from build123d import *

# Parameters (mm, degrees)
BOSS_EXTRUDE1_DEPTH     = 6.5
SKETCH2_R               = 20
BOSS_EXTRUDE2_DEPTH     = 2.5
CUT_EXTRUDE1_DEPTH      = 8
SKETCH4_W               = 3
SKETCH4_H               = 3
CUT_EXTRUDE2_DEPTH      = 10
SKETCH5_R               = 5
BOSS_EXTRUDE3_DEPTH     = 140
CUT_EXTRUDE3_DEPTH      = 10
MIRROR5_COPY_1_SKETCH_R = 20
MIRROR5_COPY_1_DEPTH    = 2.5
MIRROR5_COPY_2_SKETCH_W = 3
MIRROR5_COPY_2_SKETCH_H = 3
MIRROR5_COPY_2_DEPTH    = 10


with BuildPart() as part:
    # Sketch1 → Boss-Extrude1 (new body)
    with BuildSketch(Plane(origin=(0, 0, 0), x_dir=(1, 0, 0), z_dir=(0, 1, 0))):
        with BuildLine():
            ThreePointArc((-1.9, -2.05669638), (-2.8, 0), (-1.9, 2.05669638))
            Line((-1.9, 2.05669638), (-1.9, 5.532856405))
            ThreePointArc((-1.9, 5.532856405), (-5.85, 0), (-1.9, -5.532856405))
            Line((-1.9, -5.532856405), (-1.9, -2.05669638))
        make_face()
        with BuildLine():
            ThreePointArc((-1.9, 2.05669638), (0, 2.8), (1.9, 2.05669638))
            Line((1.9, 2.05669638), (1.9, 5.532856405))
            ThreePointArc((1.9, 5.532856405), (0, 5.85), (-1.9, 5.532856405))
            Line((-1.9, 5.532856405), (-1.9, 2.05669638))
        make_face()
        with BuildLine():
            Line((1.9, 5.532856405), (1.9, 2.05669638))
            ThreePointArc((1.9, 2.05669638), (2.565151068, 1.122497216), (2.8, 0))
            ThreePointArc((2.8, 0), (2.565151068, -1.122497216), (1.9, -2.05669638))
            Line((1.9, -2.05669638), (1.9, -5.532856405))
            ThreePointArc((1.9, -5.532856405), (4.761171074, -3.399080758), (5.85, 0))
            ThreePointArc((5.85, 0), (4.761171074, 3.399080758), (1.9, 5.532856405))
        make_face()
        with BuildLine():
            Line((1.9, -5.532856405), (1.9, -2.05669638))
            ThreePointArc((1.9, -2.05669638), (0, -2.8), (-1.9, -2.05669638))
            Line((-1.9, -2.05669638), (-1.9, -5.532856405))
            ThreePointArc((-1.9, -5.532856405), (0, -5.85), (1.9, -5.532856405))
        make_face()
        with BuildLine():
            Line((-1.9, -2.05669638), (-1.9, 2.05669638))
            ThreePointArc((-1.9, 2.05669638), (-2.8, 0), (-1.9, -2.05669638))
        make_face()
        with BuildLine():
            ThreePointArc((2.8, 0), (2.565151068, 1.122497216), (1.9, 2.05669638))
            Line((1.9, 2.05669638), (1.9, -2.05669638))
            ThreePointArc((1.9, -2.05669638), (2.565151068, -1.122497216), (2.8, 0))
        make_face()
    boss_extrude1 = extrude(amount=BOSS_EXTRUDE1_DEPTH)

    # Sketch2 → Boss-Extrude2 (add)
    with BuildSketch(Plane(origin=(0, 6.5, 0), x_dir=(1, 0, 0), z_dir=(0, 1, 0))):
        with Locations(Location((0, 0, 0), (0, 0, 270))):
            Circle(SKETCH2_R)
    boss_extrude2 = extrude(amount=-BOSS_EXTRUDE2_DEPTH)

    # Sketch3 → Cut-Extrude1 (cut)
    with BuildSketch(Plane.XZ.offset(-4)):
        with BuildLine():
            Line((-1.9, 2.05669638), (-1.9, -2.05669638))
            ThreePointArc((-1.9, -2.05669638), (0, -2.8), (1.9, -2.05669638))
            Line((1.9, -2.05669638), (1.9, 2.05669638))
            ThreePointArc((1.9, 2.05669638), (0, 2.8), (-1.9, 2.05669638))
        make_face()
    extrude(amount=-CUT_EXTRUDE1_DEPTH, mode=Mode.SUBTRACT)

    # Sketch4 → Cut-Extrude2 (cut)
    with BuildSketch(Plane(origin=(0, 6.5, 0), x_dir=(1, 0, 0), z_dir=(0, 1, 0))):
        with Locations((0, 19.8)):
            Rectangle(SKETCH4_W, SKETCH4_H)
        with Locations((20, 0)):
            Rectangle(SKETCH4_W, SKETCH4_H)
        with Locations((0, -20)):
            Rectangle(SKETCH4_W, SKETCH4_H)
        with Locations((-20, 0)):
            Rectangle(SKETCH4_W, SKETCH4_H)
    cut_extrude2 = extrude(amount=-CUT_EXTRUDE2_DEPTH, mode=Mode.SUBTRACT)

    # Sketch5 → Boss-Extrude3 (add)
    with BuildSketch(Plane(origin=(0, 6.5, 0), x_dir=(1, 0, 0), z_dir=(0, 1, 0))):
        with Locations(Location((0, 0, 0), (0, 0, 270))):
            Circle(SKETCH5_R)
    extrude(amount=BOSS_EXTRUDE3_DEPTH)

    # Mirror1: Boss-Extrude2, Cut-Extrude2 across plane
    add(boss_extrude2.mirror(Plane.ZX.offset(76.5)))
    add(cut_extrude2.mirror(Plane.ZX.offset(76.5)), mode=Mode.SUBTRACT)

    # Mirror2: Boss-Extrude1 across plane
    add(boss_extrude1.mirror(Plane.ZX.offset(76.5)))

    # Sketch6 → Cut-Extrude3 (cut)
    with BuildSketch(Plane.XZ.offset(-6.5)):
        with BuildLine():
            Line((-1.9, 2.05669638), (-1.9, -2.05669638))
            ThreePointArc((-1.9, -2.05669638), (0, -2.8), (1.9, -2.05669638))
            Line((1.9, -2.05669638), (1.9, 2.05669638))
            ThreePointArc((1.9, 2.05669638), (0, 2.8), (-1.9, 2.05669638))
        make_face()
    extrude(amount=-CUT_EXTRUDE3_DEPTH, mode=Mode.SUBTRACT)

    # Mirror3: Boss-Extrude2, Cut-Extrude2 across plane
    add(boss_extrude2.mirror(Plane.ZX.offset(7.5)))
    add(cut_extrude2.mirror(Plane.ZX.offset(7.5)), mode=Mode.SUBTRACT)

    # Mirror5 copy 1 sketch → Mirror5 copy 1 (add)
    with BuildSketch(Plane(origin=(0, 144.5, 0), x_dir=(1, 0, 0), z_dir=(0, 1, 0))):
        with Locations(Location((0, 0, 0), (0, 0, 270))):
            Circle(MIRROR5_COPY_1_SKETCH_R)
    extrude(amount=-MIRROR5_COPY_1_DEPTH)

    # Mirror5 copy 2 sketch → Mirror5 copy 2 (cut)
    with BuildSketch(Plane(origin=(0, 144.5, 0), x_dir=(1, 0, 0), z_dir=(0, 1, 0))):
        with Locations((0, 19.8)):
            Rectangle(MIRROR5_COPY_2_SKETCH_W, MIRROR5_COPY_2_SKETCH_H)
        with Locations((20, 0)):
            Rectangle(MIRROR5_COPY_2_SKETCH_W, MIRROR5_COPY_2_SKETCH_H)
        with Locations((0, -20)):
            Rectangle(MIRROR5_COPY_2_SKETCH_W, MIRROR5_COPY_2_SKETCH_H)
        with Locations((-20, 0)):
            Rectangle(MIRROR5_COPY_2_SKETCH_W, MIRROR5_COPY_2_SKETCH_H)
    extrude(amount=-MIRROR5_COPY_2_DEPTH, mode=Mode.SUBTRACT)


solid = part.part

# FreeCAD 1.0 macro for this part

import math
import FreeCAD as App
import Part
import Sketcher

V = App.Vector
Q = App.Units.Quantity

doc = App.newDocument("Part")
body = doc.addObject("PartDesign::Body", "Body")

sketch1 = body.newObject("Sketcher::SketchObject", "Sketch")
sketch1.AttachmentSupport = (doc.getObject("XZ_Plane"), [""])
sketch1.MapMode = "FlatFace"
sketch1.addGeometry([
    Part.ArcOfCircle(Part.Circle(V(0, 0, 0), V(0, 0, 1), 5.85), math.radians(0), math.radians(71.04737)),
    Part.ArcOfCircle(Part.Circle(V(0, 0, 0), V(0, 0, 1), 5.85), math.radians(-71.04737), math.radians(0)),
    Part.ArcOfCircle(Part.Circle(V(0, 0, 0), V(0, 0, 1), 5.85), math.radians(-108.95263), math.radians(-71.04737)),
    Part.ArcOfCircle(Part.Circle(V(0, 0, 0), V(0, 0, 1), 5.85), math.radians(108.95263), math.radians(251.04737)),
    Part.ArcOfCircle(Part.Circle(V(0, 0, 0), V(0, 0, 1), 5.85), math.radians(71.04737), math.radians(108.95263)),
    Part.ArcOfCircle(Part.Circle(V(0, 0, 0), V(0, 0, 1), 2.8), math.radians(-132.73211), math.radians(-47.26789)),
    Part.LineSegment(V(1.9, -2.056696, 0), V(1.9, 2.056696, 0)),
    Part.ArcOfCircle(Part.Circle(V(0, 0, 0), V(0, 0, 1), 2.8), math.radians(47.26789), math.radians(132.73211)),
    Part.LineSegment(V(-1.9, 2.056696, 0), V(-1.9, -2.056696, 0)),
], False)
sketch1.addConstraint([
    Sketcher.Constraint("Tangent", 0, 1, 1, 2),
    Sketcher.Constraint("Tangent", 1, 1, 2, 2),
    Sketcher.Constraint("Tangent", 2, 1, 3, 2),
    Sketcher.Constraint("Tangent", 3, 1, 4, 2),
    Sketcher.Constraint("Tangent", 4, 1, 0, 2),
    Sketcher.Constraint("Coincident", 5, 2, 6, 1),
    Sketcher.Constraint("Coincident", 6, 2, 7, 1),
    Sketcher.Constraint("Coincident", 7, 2, 8, 1),
    Sketcher.Constraint("Coincident", 8, 2, 5, 1),
    Sketcher.Constraint("Vertical", 6),
    Sketcher.Constraint("Vertical", 8),
    Sketcher.Constraint("Coincident", 0, 3, -1, 1),
    Sketcher.Constraint("Coincident", 2, 3, -1, 1),
    Sketcher.Constraint("Coincident", 5, 3, -1, 1),
    Sketcher.Constraint("Coincident", 7, 3, -1, 1),
    Sketcher.Constraint("Equal", 5, 7),
    Sketcher.Constraint("PointOnObject", 0, 1, -1),
    Sketcher.Constraint("Horizontal", 1, 1, 2, 1),
    Sketcher.Constraint("Horizontal", 3, 1, 4, 1),
    Sketcher.Constraint("Horizontal", 6, 2, 7, 2),
    Sketcher.Constraint("Vertical", 2, 1, 3, 1),
    Sketcher.Constraint("Vertical", 4, 1, 5, 2),
    Sketcher.Constraint("Radius", 5, Q("2.8 mm")),
    Sketcher.Constraint("Radius", 0, Q("5.85 mm")),
    Sketcher.Constraint("DistanceX", -1, 1, 1, 1, Q("1.9 mm")),
])
pad1 = body.newObject("PartDesign::Pad", "Pad")
pad1.Profile = sketch1
pad1.Length = 6.5
pad1.Reversed = True

sketch2 = body.newObject("Sketcher::SketchObject", "Sketch001")
sketch2.AttachmentSupport = (doc.getObject("XZ_Plane"), [""])
sketch2.MapMode = "FlatFace"
sketch2.AttachmentOffset = App.Placement(V(0, 0, -6.5), App.Rotation())
sketch2.addGeometry(Part.Circle(V(0, 0, 0), V(0, 0, 1), 20), False)
sketch2.addConstraint([
    Sketcher.Constraint("Coincident", 0, 3, -1, 1),
    Sketcher.Constraint("Diameter", 0, Q("40 mm")),
])
pad2 = body.newObject("PartDesign::Pad", "Pad001")
pad2.Profile = sketch2
pad2.Length = 2.5

sketch3 = body.newObject("Sketcher::SketchObject", "Sketch002")
sketch3.AttachmentSupport = (doc.getObject("XZ_Plane"), [""])
sketch3.MapMode = "FlatFace"
sketch3.AttachmentOffset = App.Placement(V(0, 0, -4), App.Rotation())
sketch3.addGeometry([
    Part.LineSegment(V(-1.9, 2.056696, 0), V(-1.9, -2.056696, 0)),
    Part.ArcOfCircle(Part.Circle(V(0, 0, 0), V(0, 0, 1), 2.8), math.radians(-132.73211), math.radians(-47.26789)),
    Part.LineSegment(V(1.9, -2.056696, 0), V(1.9, 2.056696, 0)),
    Part.ArcOfCircle(Part.Circle(V(0, 0, 0), V(0, 0, 1), 2.8), math.radians(47.26789), math.radians(132.73211)),
], False)
sketch3.addConstraint([
    Sketcher.Constraint("Coincident", 0, 2, 1, 1),
    Sketcher.Constraint("Coincident", 1, 2, 2, 1),
    Sketcher.Constraint("Coincident", 2, 2, 3, 1),
    Sketcher.Constraint("Coincident", 3, 2, 0, 1),
    Sketcher.Constraint("Vertical", 0),
    Sketcher.Constraint("Vertical", 2),
    Sketcher.Constraint("Coincident", 1, 3, -1, 1),
    Sketcher.Constraint("Coincident", 3, 3, -1, 1),
    Sketcher.Constraint("Equal", 1, 3),
    Sketcher.Constraint("Horizontal", 0, 2, 1, 2),
    Sketcher.Constraint("Radius", 1, Q("2.8 mm")),
    Sketcher.Constraint("DistanceX", 0, 2, -1, 1, Q("1.9 mm")),
])
pocket1 = body.newObject("PartDesign::Pocket", "Pocket")
pocket1.Profile = sketch3
pocket1.Length = 8

sketch4 = body.newObject("Sketcher::SketchObject", "Sketch003")
sketch4.AttachmentSupport = (doc.getObject("XZ_Plane"), [""])
sketch4.MapMode = "FlatFace"
sketch4.AttachmentOffset = App.Placement(V(0, 0, -6.5), App.Rotation())
sketch4.addGeometry([
    Part.LineSegment(V(-1.5, -21.3, 0), V(-1.5, -18.3, 0)),
    Part.LineSegment(V(-1.5, -18.3, 0), V(1.5, -18.3, 0)),
    Part.LineSegment(V(1.5, -18.3, 0), V(1.5, -21.3, 0)),
    Part.LineSegment(V(1.5, -21.3, 0), V(-1.5, -21.3, 0)),
    Part.LineSegment(V(18.5, -1.5, 0), V(18.5, 1.5, 0)),
    Part.LineSegment(V(18.5, 1.5, 0), V(21.5, 1.5, 0)),
    Part.LineSegment(V(21.5, 1.5, 0), V(21.5, -1.5, 0)),
    Part.LineSegment(V(21.5, -1.5, 0), V(18.5, -1.5, 0)),
    Part.LineSegment(V(-1.5, 18.5, 0), V(-1.5, 21.5, 0)),
    Part.LineSegment(V(-1.5, 21.5, 0), V(1.5, 21.5, 0)),
    Part.LineSegment(V(1.5, 21.5, 0), V(1.5, 18.5, 0)),
    Part.LineSegment(V(1.5, 18.5, 0), V(-1.5, 18.5, 0)),
    Part.LineSegment(V(-21.5, -1.5, 0), V(-21.5, 1.5, 0)),
    Part.LineSegment(V(-21.5, 1.5, 0), V(-18.5, 1.5, 0)),
    Part.LineSegment(V(-18.5, 1.5, 0), V(-18.5, -1.5, 0)),
    Part.LineSegment(V(-18.5, -1.5, 0), V(-21.5, -1.5, 0)),
], False)
sketch4.addConstraint([
    Sketcher.Constraint("Coincident", 0, 2, 1, 1),
    Sketcher.Constraint("Coincident", 1, 2, 2, 1),
    Sketcher.Constraint("Coincident", 2, 2, 3, 1),
    Sketcher.Constraint("Coincident", 3, 2, 0, 1),
    Sketcher.Constraint("Coincident", 4, 2, 5, 1),
    Sketcher.Constraint("Coincident", 5, 2, 6, 1),
    Sketcher.Constraint("Coincident", 6, 2, 7, 1),
    Sketcher.Constraint("Coincident", 7, 2, 4, 1),
    Sketcher.Constraint("Coincident", 8, 2, 9, 1),
    Sketcher.Constraint("Coincident", 9, 2, 10, 1),
    Sketcher.Constraint("Coincident", 10, 2, 11, 1),
    Sketcher.Constraint("Coincident", 11, 2, 8, 1),
    Sketcher.Constraint("Coincident", 12, 2, 13, 1),
    Sketcher.Constraint("Coincident", 13, 2, 14, 1),
    Sketcher.Constraint("Coincident", 14, 2, 15, 1),
    Sketcher.Constraint("Coincident", 15, 2, 12, 1),
    Sketcher.Constraint("Vertical", 0),
    Sketcher.Constraint("Horizontal", 1),
    Sketcher.Constraint("Vertical", 2),
    Sketcher.Constraint("Horizontal", 3),
    Sketcher.Constraint("Vertical", 4),
    Sketcher.Constraint("Horizontal", 5),
    Sketcher.Constraint("Vertical", 6),
    Sketcher.Constraint("Horizontal", 7),
    Sketcher.Constraint("Vertical", 8),
    Sketcher.Constraint("Horizontal", 9),
    Sketcher.Constraint("Vertical", 10),
    Sketcher.Constraint("Horizontal", 11),
    Sketcher.Constraint("Vertical", 12),
    Sketcher.Constraint("Horizontal", 13),
    Sketcher.Constraint("Vertical", 14),
    Sketcher.Constraint("Horizontal", 15),
    Sketcher.Constraint("Symmetric", 6, 2, 12, 2, -1, 1),
    Sketcher.Constraint("Symmetric", 4, 2, 14, 2, -1, 1),
    Sketcher.Constraint("Horizontal", 5, 2, 12, 2),
    Sketcher.Constraint("Vertical", 3, 2, 8, 2),
    Sketcher.Constraint("Vertical", 2, 2, 9, 2),
    Sketcher.Constraint("Equal", 3, 5),
    Sketcher.Constraint("Equal", 15, 0),
    Sketcher.Constraint("Equal", 2, 4),
    Sketcher.Constraint("Equal", 6, 8),
    Sketcher.Constraint("DistanceX", 1, 1, 1, 2, Q("3 mm")),
    Sketcher.Constraint("DistanceX", 1, 2, 4, 2, Q("17 mm")),
    Sketcher.Constraint("DistanceY", 4, 2, 8, 2, Q("20 mm")),
    Sketcher.Constraint("DistanceX", 12, 2, 11, 2, Q("20 mm")),
    Sketcher.Constraint("DistanceY", 0, 2, -1, 1, Q("18.3 mm")),
])
pocket2 = body.newObject("PartDesign::Pocket", "Pocket001")
pocket2.Profile = sketch4
pocket2.Length = 10
pocket2.Reversed = True

sketch5 = body.newObject("Sketcher::SketchObject", "Sketch004")
sketch5.AttachmentSupport = (doc.getObject("XZ_Plane"), [""])
sketch5.MapMode = "FlatFace"
sketch5.AttachmentOffset = App.Placement(V(0, 0, -6.5), App.Rotation())
sketch5.addGeometry(Part.Circle(V(0, 0, 0), V(0, 0, 1), 5), False)
sketch5.addConstraint([
    Sketcher.Constraint("Coincident", 0, 3, -1, 1),
    Sketcher.Constraint("Diameter", 0, Q("10 mm")),
])
pad3 = body.newObject("PartDesign::Pad", "Pad002")
pad3.Profile = sketch5
pad3.Length = 140
pad3.Reversed = True
doc.recompute()

datumplane = body.newObject("PartDesign::Plane", "DatumPlane")
datumplane.AttachmentSupport = (doc.getObject("XZ_Plane"), [""])
datumplane.MapMode = "FlatFace"
datumplane.AttachmentOffset = App.Placement(V(0, 0, -76.5), App.Rotation())
mirrored = body.newObject("PartDesign::Mirrored", "Mirrored")
mirrored.Originals = [pad2, pocket2]
mirrored.MirrorPlane = (datumplane, [""])
body.Tip = mirrored
doc.recompute()

datumplane2 = body.newObject("PartDesign::Plane", "DatumPlane001")
datumplane2.AttachmentSupport = (doc.getObject("XZ_Plane"), [""])
datumplane2.MapMode = "FlatFace"
datumplane2.AttachmentOffset = App.Placement(V(0, 0, -76.5), App.Rotation())
mirrored2 = body.newObject("PartDesign::Mirrored", "Mirrored001")
mirrored2.Originals = [pad1]
mirrored2.MirrorPlane = (datumplane2, [""])
body.Tip = mirrored2

sketch6 = body.newObject("Sketcher::SketchObject", "Sketch005")
sketch6.AttachmentSupport = (doc.getObject("XZ_Plane"), [""])
sketch6.MapMode = "FlatFace"
sketch6.AttachmentOffset = App.Placement(V(0, 0, -6.5), App.Rotation())
sketch6.addGeometry([
    Part.LineSegment(V(-1.9, 2.056696, 0), V(-1.9, -2.056696, 0)),
    Part.ArcOfCircle(Part.Circle(V(0, 0, 0), V(0, 0, 1), 2.8), math.radians(-132.73211), math.radians(-47.26789)),
    Part.LineSegment(V(1.9, -2.056696, 0), V(1.9, 2.056696, 0)),
    Part.ArcOfCircle(Part.Circle(V(0, 0, 0), V(0, 0, 1), 2.8), math.radians(47.26789), math.radians(132.73211)),
], False)
sketch6.addConstraint([
    Sketcher.Constraint("Coincident", 0, 2, 1, 1),
    Sketcher.Constraint("Coincident", 1, 2, 2, 1),
    Sketcher.Constraint("Coincident", 2, 2, 3, 1),
    Sketcher.Constraint("Coincident", 3, 2, 0, 1),
    Sketcher.Constraint("Vertical", 0),
    Sketcher.Constraint("Vertical", 2),
    Sketcher.Constraint("Coincident", 1, 3, -1, 1),
    Sketcher.Constraint("Coincident", 3, 3, -1, 1),
    Sketcher.Constraint("Equal", 1, 3),
    Sketcher.Constraint("Horizontal", 0, 2, 1, 2),
    Sketcher.Constraint("Radius", 1, Q("2.8 mm")),
    Sketcher.Constraint("DistanceX", 0, 2, -1, 1, Q("1.9 mm")),
])
pocket3 = body.newObject("PartDesign::Pocket", "Pocket002")
pocket3.Profile = sketch6
pocket3.Length = 10
doc.recompute()

datumplane3 = body.newObject("PartDesign::Plane", "DatumPlane002")
datumplane3.AttachmentSupport = (doc.getObject("XZ_Plane"), [""])
datumplane3.MapMode = "FlatFace"
datumplane3.AttachmentOffset = App.Placement(V(0, 0, -7.5), App.Rotation())
mirrored3 = body.newObject("PartDesign::Mirrored", "Mirrored002")
mirrored3.Originals = [pad2, pocket2]
mirrored3.MirrorPlane = (datumplane3, [""])
body.Tip = mirrored3

sketch7 = body.newObject("Sketcher::SketchObject", "Sketch006")
sketch7.AttachmentSupport = (doc.getObject("XZ_Plane"), [""])
sketch7.MapMode = "FlatFace"
sketch7.AttachmentOffset = App.Placement(V(0, 0, -144.5), App.Rotation())
sketch7.addGeometry(Part.Circle(V(0, 0, 0), V(0, 0, 1), 20), False)
sketch7.addConstraint([
    Sketcher.Constraint("Coincident", 0, 3, -1, 1),
    Sketcher.Constraint("Diameter", 0, Q("40 mm")),
])
pad4 = body.newObject("PartDesign::Pad", "Pad003")
pad4.Profile = sketch7
pad4.Length = 2.5

sketch8 = body.newObject("Sketcher::SketchObject", "Sketch007")
sketch8.AttachmentSupport = (doc.getObject("XZ_Plane"), [""])
sketch8.MapMode = "FlatFace"
sketch8.AttachmentOffset = App.Placement(V(0, 0, -144.5), App.Rotation())
sketch8.addGeometry([
    Part.LineSegment(V(-1.5, -21.3, 0), V(-1.5, -18.3, 0)),
    Part.LineSegment(V(-1.5, -18.3, 0), V(1.5, -18.3, 0)),
    Part.LineSegment(V(1.5, -18.3, 0), V(1.5, -21.3, 0)),
    Part.LineSegment(V(1.5, -21.3, 0), V(-1.5, -21.3, 0)),
    Part.LineSegment(V(18.5, -1.5, 0), V(18.5, 1.5, 0)),
    Part.LineSegment(V(18.5, 1.5, 0), V(21.5, 1.5, 0)),
    Part.LineSegment(V(21.5, 1.5, 0), V(21.5, -1.5, 0)),
    Part.LineSegment(V(21.5, -1.5, 0), V(18.5, -1.5, 0)),
    Part.LineSegment(V(-1.5, 18.5, 0), V(-1.5, 21.5, 0)),
    Part.LineSegment(V(-1.5, 21.5, 0), V(1.5, 21.5, 0)),
    Part.LineSegment(V(1.5, 21.5, 0), V(1.5, 18.5, 0)),
    Part.LineSegment(V(1.5, 18.5, 0), V(-1.5, 18.5, 0)),
    Part.LineSegment(V(-21.5, -1.5, 0), V(-21.5, 1.5, 0)),
    Part.LineSegment(V(-21.5, 1.5, 0), V(-18.5, 1.5, 0)),
    Part.LineSegment(V(-18.5, 1.5, 0), V(-18.5, -1.5, 0)),
    Part.LineSegment(V(-18.5, -1.5, 0), V(-21.5, -1.5, 0)),
], False)
sketch8.addConstraint([
    Sketcher.Constraint("Coincident", 0, 2, 1, 1),
    Sketcher.Constraint("Coincident", 1, 2, 2, 1),
    Sketcher.Constraint("Coincident", 2, 2, 3, 1),
    Sketcher.Constraint("Coincident", 3, 2, 0, 1),
    Sketcher.Constraint("Coincident", 4, 2, 5, 1),
    Sketcher.Constraint("Coincident", 5, 2, 6, 1),
    Sketcher.Constraint("Coincident", 6, 2, 7, 1),
    Sketcher.Constraint("Coincident", 7, 2, 4, 1),
    Sketcher.Constraint("Coincident", 8, 2, 9, 1),
    Sketcher.Constraint("Coincident", 9, 2, 10, 1),
    Sketcher.Constraint("Coincident", 10, 2, 11, 1),
    Sketcher.Constraint("Coincident", 11, 2, 8, 1),
    Sketcher.Constraint("Coincident", 12, 2, 13, 1),
    Sketcher.Constraint("Coincident", 13, 2, 14, 1),
    Sketcher.Constraint("Coincident", 14, 2, 15, 1),
    Sketcher.Constraint("Coincident", 15, 2, 12, 1),
    Sketcher.Constraint("Vertical", 0),
    Sketcher.Constraint("Horizontal", 1),
    Sketcher.Constraint("Vertical", 2),
    Sketcher.Constraint("Horizontal", 3),
    Sketcher.Constraint("Vertical", 4),
    Sketcher.Constraint("Horizontal", 5),
    Sketcher.Constraint("Vertical", 6),
    Sketcher.Constraint("Horizontal", 7),
    Sketcher.Constraint("Vertical", 8),
    Sketcher.Constraint("Horizontal", 9),
    Sketcher.Constraint("Vertical", 10),
    Sketcher.Constraint("Horizontal", 11),
    Sketcher.Constraint("Vertical", 12),
    Sketcher.Constraint("Horizontal", 13),
    Sketcher.Constraint("Vertical", 14),
    Sketcher.Constraint("Horizontal", 15),
    Sketcher.Constraint("Symmetric", 6, 2, 12, 2, -1, 1),
    Sketcher.Constraint("Symmetric", 4, 2, 14, 2, -1, 1),
    Sketcher.Constraint("Horizontal", 5, 2, 12, 2),
    Sketcher.Constraint("Vertical", 3, 2, 8, 2),
    Sketcher.Constraint("Vertical", 2, 2, 9, 2),
    Sketcher.Constraint("Equal", 3, 5),
    Sketcher.Constraint("Equal", 15, 0),
    Sketcher.Constraint("Equal", 2, 4),
    Sketcher.Constraint("Equal", 6, 8),
    Sketcher.Constraint("DistanceX", 1, 1, 1, 2, Q("3 mm")),
    Sketcher.Constraint("DistanceX", 1, 2, 4, 2, Q("17 mm")),
    Sketcher.Constraint("DistanceY", 4, 2, 8, 2, Q("20 mm")),
    Sketcher.Constraint("DistanceX", 12, 2, 11, 2, Q("20 mm")),
    Sketcher.Constraint("DistanceY", 0, 2, -1, 1, Q("18.3 mm")),
])
pocket4 = body.newObject("PartDesign::Pocket", "Pocket003")
pocket4.Profile = sketch8
pocket4.Length = 10
pocket4.Reversed = True

doc.recompute()
